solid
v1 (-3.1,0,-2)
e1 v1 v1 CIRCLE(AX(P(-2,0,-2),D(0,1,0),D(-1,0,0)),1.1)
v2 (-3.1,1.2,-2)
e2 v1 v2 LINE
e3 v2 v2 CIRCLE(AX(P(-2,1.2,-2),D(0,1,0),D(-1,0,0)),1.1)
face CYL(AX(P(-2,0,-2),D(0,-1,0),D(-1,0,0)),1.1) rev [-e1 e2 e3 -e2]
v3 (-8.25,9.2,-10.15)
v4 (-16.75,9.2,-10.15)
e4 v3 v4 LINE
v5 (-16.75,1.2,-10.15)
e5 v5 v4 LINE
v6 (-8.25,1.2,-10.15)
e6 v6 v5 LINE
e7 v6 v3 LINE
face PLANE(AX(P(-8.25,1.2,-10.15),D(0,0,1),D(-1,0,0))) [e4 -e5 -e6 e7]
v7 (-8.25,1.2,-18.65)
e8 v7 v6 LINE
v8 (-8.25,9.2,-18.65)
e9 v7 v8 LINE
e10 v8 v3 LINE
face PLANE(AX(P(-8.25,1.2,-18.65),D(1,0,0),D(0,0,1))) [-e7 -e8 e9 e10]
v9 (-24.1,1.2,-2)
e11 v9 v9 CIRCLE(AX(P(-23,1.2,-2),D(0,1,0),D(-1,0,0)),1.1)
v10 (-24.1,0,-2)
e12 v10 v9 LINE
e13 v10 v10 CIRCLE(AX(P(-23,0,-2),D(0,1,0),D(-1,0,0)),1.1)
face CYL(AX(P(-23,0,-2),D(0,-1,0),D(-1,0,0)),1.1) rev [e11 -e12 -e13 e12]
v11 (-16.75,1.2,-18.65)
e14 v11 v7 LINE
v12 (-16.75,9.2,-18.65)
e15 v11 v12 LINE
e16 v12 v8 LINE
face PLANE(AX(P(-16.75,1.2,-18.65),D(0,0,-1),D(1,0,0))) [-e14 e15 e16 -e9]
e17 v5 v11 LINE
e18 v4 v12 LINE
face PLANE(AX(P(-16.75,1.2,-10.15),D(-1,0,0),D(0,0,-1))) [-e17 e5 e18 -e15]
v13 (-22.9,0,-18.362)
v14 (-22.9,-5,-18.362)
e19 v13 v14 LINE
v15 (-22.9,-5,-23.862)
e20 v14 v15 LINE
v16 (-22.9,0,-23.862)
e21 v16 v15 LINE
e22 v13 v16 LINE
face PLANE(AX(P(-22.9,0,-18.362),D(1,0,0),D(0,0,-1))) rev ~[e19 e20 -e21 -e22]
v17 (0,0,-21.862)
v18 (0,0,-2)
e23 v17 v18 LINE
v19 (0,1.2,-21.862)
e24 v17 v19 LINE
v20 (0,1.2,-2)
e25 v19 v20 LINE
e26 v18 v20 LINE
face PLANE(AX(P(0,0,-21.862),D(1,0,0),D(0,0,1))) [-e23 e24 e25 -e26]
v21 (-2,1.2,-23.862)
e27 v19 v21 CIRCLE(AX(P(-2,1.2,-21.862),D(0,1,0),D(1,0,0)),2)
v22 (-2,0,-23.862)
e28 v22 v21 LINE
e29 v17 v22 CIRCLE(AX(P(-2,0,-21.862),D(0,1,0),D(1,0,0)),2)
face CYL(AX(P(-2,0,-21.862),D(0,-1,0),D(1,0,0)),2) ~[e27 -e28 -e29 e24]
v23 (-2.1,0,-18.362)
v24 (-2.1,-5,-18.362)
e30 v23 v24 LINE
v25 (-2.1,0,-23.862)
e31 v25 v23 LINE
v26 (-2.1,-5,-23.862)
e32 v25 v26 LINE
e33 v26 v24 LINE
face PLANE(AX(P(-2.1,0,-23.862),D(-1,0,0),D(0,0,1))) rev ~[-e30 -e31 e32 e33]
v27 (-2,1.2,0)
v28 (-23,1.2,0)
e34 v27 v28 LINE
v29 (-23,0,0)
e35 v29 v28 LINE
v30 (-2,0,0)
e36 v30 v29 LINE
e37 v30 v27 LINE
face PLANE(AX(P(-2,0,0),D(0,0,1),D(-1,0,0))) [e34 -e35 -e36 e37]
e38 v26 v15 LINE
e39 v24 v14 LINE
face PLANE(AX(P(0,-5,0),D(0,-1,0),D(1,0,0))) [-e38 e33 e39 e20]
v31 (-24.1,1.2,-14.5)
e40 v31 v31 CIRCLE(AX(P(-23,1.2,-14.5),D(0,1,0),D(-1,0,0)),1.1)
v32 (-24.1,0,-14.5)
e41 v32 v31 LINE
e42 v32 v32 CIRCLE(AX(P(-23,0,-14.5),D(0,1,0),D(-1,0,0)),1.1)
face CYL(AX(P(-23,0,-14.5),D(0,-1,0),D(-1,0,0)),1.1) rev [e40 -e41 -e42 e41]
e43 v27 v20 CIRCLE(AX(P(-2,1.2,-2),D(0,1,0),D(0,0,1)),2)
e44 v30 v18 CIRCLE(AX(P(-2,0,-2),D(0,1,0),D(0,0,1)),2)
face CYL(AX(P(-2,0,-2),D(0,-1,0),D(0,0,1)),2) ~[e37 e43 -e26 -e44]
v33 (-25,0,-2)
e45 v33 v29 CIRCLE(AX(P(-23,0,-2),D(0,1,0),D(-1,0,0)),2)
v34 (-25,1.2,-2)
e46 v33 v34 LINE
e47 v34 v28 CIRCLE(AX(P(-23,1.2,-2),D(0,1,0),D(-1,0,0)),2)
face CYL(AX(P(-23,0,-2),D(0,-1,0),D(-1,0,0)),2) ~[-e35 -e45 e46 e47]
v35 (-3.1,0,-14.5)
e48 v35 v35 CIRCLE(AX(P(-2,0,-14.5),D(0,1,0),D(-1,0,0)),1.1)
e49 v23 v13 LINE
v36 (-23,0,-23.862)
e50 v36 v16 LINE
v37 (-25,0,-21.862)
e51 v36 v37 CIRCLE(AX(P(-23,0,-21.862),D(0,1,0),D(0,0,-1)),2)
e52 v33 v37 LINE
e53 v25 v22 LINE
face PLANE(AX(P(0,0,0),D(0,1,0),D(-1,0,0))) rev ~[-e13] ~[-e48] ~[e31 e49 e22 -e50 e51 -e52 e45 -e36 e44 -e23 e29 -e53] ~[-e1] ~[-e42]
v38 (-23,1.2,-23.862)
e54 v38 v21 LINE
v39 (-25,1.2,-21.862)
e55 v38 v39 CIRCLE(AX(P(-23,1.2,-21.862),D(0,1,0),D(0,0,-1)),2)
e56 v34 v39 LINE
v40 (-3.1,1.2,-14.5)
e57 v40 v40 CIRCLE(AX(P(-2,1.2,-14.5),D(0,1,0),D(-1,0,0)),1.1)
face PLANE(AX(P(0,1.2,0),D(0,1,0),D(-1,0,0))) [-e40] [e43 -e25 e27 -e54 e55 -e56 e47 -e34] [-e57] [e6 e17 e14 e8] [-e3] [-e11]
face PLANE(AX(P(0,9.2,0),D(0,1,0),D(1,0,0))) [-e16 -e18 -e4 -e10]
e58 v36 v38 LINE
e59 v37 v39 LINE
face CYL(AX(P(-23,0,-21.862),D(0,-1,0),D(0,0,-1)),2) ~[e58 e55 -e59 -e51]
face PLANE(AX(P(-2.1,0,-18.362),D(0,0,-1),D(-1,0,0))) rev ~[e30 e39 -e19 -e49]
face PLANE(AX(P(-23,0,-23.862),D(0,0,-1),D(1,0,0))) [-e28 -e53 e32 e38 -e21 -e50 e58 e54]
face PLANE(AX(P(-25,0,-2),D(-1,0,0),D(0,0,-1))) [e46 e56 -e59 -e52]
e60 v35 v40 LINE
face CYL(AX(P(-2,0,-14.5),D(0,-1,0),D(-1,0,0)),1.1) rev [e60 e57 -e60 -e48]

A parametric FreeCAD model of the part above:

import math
import FreeCAD as App
import Part
import Sketcher
from FreeCAD import Vector
Q = App.Units.Quantity

doc = App.newDocument("Part")
body = doc.addObject("PartDesign::Body", "Body")

# Sketch on XZ plane
sketch1 = body.newObject("Sketcher::SketchObject", "Sketch")
sketch1.AttachmentSupport = (doc.getObject("XZ_Plane"), [""])
sketch1.MapMode = "FlatFace"
sketch1.addGeometry(Part.LineSegment(Vector(-23, 0, 0), Vector(-2, 0, 0)), False)
sketch1.addGeometry(Part.ArcOfCircle(Part.Circle(Vector(-2, -2, 0), Vector(0, 0, 1), 2), math.radians(0), math.radians(90)), False)
sketch1.addGeometry(Part.LineSegment(Vector(0, -2, 0), Vector(0, -21.9, 0)), False)
sketch1.addGeometry(Part.ArcOfCircle(Part.Circle(Vector(-2, -21.9, 0), Vector(0, 0, 1), 2), math.radians(-90), math.radians(0)), False)
sketch1.addGeometry(Part.LineSegment(Vector(-2, -23.9, 0), Vector(-23, -23.9, 0)), False)
sketch1.addGeometry(Part.ArcOfCircle(Part.Circle(Vector(-23, -21.9, 0), Vector(0, 0, 1), 2), math.radians(180), math.radians(270)), False)
sketch1.addGeometry(Part.LineSegment(Vector(-25, -21.9, 0), Vector(-25, -2, 0)), False)
sketch1.addGeometry(Part.ArcOfCircle(Part.Circle(Vector(-23, -2, 0), Vector(0, 0, 1), 2), math.radians(90), math.radians(180)), False)
sketch1.addGeometry(Part.Circle(Vector(-2, -14.5, 0), Vector(0, 0, 1), 1.1), False)
sketch1.addGeometry(Part.Circle(Vector(-23, -14.5, 0), Vector(0, 0, 1), 1.1), False)
sketch1.addGeometry(Part.Circle(Vector(-2, -2, 0), Vector(0, 0, 1), 1.1), False)
sketch1.addGeometry(Part.Circle(Vector(-23, -2, 0), Vector(0, 0, 1), 1.1), False)
sketch1.addConstraint(Sketcher.Constraint("Tangent", 0, 2, 1, 2))
sketch1.addConstraint(Sketcher.Constraint("Tangent", 1, 1, 2, 1))
sketch1.addConstraint(Sketcher.Constraint("Tangent", 2, 2, 3, 2))
sketch1.addConstraint(Sketcher.Constraint("Tangent", 3, 1, 4, 1))
sketch1.addConstraint(Sketcher.Constraint("Tangent", 4, 2, 5, 2))
sketch1.addConstraint(Sketcher.Constraint("Tangent", 5, 1, 6, 1))
sketch1.addConstraint(Sketcher.Constraint("Tangent", 6, 2, 7, 2))
sketch1.addConstraint(Sketcher.Constraint("Tangent", 7, 1, 0, 1))
sketch1.addConstraint(Sketcher.Constraint("Horizontal", 0))
sketch1.addConstraint(Sketcher.Constraint("Vertical", 2))
sketch1.addConstraint(Sketcher.Constraint("Horizontal", 4))
sketch1.addConstraint(Sketcher.Constraint("Vertical", 6))
sketch1.addConstraint(Sketcher.Constraint("Coincident", 10, 3, 1, 3))
sketch1.addConstraint(Sketcher.Constraint("Coincident", 11, 3, 7, 3))
sketch1.addConstraint(Sketcher.Constraint("Equal", 1, 3))
sketch1.addConstraint(Sketcher.Constraint("Equal", 3, 5))
sketch1.addConstraint(Sketcher.Constraint("Equal", 5, 7))
sketch1.addConstraint(Sketcher.Constraint("Equal", 8, 9))
sketch1.addConstraint(Sketcher.Constraint("Equal", 9, 10))
sketch1.addConstraint(Sketcher.Constraint("Equal", 10, 11))
sketch1.addConstraint(Sketcher.Constraint("PointOnObject", 0, 2, -1))
sketch1.addConstraint(Sketcher.Constraint("PointOnObject", 1, 1, -2))
sketch1.addConstraint(Sketcher.Constraint("Horizontal", 8, 3, 9, 3))
sketch1.addConstraint(Sketcher.Constraint("Vertical", 3, 3, 8, 3))
sketch1.addConstraint(Sketcher.Constraint("Vertical", 7, 3, 9, 3))
sketch1.addConstraint(Sketcher.Constraint("Radius", 1, Q("2 mm")))
sketch1.addConstraint(Sketcher.Constraint("Diameter", 8, Q("2.2 mm")))
sketch1.addConstraint(Sketcher.Constraint("DistanceX", 5, 1, -1, 1, Q("25 mm")))
sketch1.addConstraint(Sketcher.Constraint("DistanceY", 8, 3, -1, 1, Q("14.5 mm")))
sketch1.addConstraint(Sketcher.Constraint("DistanceY", 3, 1, -1, 1, Q("23.862 mm")))
pad1 = body.newObject("PartDesign::Pad", "Pad")
pad1.Profile = sketch1
pad1.Length = 1.2
pad1.Reversed = True

# Sketch on XZ plane
sketch2 = body.newObject("Sketcher::SketchObject", "Sketch001")
sketch2.AttachmentSupport = (doc.getObject("XZ_Plane"), [""])
sketch2.MapMode = "FlatFace"
sketch2.AttachmentOffset = App.Placement(Vector(0, 0, -1.2), App.Rotation())
sketch2.addGeometry(Part.LineSegment(Vector(-8, -19, 0), Vector(-17, -19, 0)), False)
sketch2.addGeometry(Part.LineSegment(Vector(-17, -19, 0), Vector(-17, -10, 0)), False)
sketch2.addGeometry(Part.LineSegment(Vector(-17, -10, 0), Vector(-8, -10, 0)), False)
sketch2.addGeometry(Part.LineSegment(Vector(-8, -10, 0), Vector(-8, -19, 0)), False)
sketch2.addConstraint(Sketcher.Constraint("Coincident", 0, 2, 1, 1))
sketch2.addConstraint(Sketcher.Constraint("Coincident", 1, 2, 2, 1))
sketch2.addConstraint(Sketcher.Constraint("Coincident", 2, 2, 3, 1))
sketch2.addConstraint(Sketcher.Constraint("Coincident", 3, 2, 0, 1))
sketch2.addConstraint(Sketcher.Constraint("Horizontal", 0))
sketch2.addConstraint(Sketcher.Constraint("Vertical", 1))
sketch2.addConstraint(Sketcher.Constraint("Horizontal", 2))
sketch2.addConstraint(Sketcher.Constraint("Vertical", 3))
sketch2.addConstraint(Sketcher.Constraint("Equal", 2, 1))
sketch2.addConstraint(Sketcher.Constraint("DistanceX", 0, 2, 0, 1, Q("8.5 mm")))
sketch2.addConstraint(Sketcher.Constraint("DistanceX", 0, 2, -1, 1, Q("16.75 mm")))
sketch2.addConstraint(Sketcher.Constraint("DistanceY", 0, 2, -1, 1, Q("18.65 mm")))
pad2 = body.newObject("PartDesign::Pad", "Pad001")
pad2.Profile = sketch2
pad2.Length = 8
pad2.Reversed = True

# Sketch on XZ plane
sketch3 = body.newObject("Sketcher::SketchObject", "Sketch002")
sketch3.AttachmentSupport = (doc.getObject("XZ_Plane"), [""])
sketch3.MapMode = "FlatFace"
sketch3.addGeometry(Part.LineSegment(Vector(-23, -24, 0), Vector(-2, -24, 0)), False)
sketch3.addGeometry(Part.LineSegment(Vector(-2, -24, 0), Vector(-2, -18, 0)), False)
sketch3.addGeometry(Part.LineSegment(Vector(-2, -18, 0), Vector(-23, -18, 0)), False)
sketch3.addGeometry(Part.LineSegment(Vector(-23, -18, 0), Vector(-23, -24, 0)), False)
sketch3.addConstraint(Sketcher.Constraint("Coincident", 0, 2, 1, 1))
sketch3.addConstraint(Sketcher.Constraint("Coincident", 1, 2, 2, 1))
sketch3.addConstraint(Sketcher.Constraint("Coincident", 2, 2, 3, 1))
sketch3.addConstraint(Sketcher.Constraint("Coincident", 3, 2, 0, 1))
sketch3.addConstraint(Sketcher.Constraint("Horizontal", 0))
sketch3.addConstraint(Sketcher.Constraint("Vertical", 1))
sketch3.addConstraint(Sketcher.Constraint("Horizontal", 2))
sketch3.addConstraint(Sketcher.Constraint("Vertical", 3))
sketch3.addConstraint(Sketcher.Constraint("DistanceX", 0, 1, 0, 2, Q("20.8 mm")))
sketch3.addConstraint(Sketcher.Constraint("DistanceY", 1, 1, 1, 2, Q("5.5 mm")))
sketch3.addConstraint(Sketcher.Constraint("DistanceX", 0, 2, -1, 1, Q("2.1 mm")))
sketch3.addConstraint(Sketcher.Constraint("DistanceY", 0, 2, -1, 1, Q("23.862 mm")))
pad3 = body.newObject("PartDesign::Pad", "Pad002")
pad3.Profile = sketch3
pad3.Length = 5

doc.recompute()
